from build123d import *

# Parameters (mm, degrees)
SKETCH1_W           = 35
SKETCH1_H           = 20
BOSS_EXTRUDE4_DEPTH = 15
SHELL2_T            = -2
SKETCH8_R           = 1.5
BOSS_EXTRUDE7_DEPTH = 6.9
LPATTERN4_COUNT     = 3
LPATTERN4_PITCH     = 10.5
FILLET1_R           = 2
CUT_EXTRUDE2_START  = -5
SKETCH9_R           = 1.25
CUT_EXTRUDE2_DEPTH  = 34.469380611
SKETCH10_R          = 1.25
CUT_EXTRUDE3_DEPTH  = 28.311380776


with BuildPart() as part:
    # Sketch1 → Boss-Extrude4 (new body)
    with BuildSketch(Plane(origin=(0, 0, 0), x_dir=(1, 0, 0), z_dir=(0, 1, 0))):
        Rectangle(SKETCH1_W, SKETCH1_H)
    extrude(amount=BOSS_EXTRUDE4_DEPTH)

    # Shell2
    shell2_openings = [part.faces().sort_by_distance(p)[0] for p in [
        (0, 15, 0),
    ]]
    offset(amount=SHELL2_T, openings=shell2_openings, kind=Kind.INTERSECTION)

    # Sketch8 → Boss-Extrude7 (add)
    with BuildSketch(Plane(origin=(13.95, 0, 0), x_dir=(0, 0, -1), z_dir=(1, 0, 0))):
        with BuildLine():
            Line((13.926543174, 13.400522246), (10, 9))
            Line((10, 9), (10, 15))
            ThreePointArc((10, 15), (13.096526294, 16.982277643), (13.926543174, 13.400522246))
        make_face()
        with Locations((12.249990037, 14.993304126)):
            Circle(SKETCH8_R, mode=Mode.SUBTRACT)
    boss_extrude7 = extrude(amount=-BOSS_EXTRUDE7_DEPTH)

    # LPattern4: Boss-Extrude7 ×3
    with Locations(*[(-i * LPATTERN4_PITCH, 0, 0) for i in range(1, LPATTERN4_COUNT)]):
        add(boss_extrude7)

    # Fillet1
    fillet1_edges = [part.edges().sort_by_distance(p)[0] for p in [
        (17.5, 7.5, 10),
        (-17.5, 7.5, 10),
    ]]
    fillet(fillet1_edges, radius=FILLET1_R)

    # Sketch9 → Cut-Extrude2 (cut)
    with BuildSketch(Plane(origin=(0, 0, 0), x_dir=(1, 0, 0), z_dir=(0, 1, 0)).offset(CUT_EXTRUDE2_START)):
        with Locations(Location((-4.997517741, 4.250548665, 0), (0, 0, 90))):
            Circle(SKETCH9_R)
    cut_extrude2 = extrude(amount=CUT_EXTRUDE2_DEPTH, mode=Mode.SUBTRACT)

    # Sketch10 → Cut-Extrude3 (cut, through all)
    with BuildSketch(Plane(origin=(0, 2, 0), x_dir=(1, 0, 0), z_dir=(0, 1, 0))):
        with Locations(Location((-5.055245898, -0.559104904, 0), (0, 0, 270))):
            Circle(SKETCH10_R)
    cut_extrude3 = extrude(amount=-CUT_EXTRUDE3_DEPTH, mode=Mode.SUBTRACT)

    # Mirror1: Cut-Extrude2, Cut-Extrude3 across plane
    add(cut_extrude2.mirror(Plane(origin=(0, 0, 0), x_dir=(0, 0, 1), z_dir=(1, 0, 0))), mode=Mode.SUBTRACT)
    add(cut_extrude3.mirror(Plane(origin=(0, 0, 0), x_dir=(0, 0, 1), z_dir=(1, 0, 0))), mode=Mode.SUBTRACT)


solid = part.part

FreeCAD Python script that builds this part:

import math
import FreeCAD as App
import Part
import Sketcher

V = App.Vector


def edges_at(feature, points):
    """Names of the edges that pass closest to the given points."""
    edges = feature.Shape.Edges
    near = lambda p: min(range(len(edges)), key=lambda i: edges[i].distToShape(Part.Vertex(*p))[0])
    return sorted({f"Edge{near(p) + 1}" for p in points})


def faces_at(feature, points):
    """Names of the faces that lie closest to the given points."""
    faces = feature.Shape.Faces
    near = lambda p: min(range(len(faces)), key=lambda i: faces[i].distToShape(Part.Vertex(*p))[0])
    return sorted({f"Face{near(p) + 1}" for p in points})


def add_polygon(sketch, points):
    """Adds a closed chain of lines whose ends are joined by coincident constraints."""
    first, n = sketch.GeometryCount, len(points)
    for a, b in zip(points, points[1:] + points[:1]):
        sketch.addGeometry(Part.LineSegment(App.Vector(*a, 0), App.Vector(*b, 0)), False)
    for i in range(n):
        sketch.addConstraint(Sketcher.Constraint("Coincident", first + i, 2, first + (i + 1) % n, 1))

doc = App.newDocument("Part")
body = doc.addObject("PartDesign::Body", "Body")

# Sketch on XZ plane
sketch1 = body.newObject("Sketcher::SketchObject", "Sketch")
sketch1.AttachmentSupport = (doc.getObject("XZ_Plane"), [""])
sketch1.MapMode = "FlatFace"
add_polygon(sketch1, [(-18, -10), (-18, 10), (18, 10), (18, -10)])  # lines 0-3
sketch1.addConstraint([
    Sketcher.Constraint("Vertical", 0),
    Sketcher.Constraint("Horizontal", 1),
    Sketcher.Constraint("Vertical", 2),
    Sketcher.Constraint("Horizontal", 3),
    Sketcher.Constraint("Symmetric", 0, 2, 2, 2, -1, 1),
    Sketcher.Constraint("DistanceX", 1, 1, 1, 2, 35.0),
    Sketcher.Constraint("DistanceY", 0, 1, 0, 2, 20.0),
])
pad1 = body.newObject("PartDesign::Pad", "Pad")
pad1.Profile = sketch1
pad1.Length = 15
pad1.Reversed = True
doc.recompute()

thickness = body.newObject("PartDesign::Thickness", "Thickness")
thickness.Base = (pad1, faces_at(pad1, [(0, 15, 0)]))
thickness.Value = 2
thickness.Reversed = True
thickness.Join = "Intersection"

# Sketch on YZ plane
sketch2 = body.newObject("Sketcher::SketchObject", "Sketch001")
sketch2.AttachmentSupport = (doc.getObject("YZ_Plane"), [""])
sketch2.MapMode = "FlatFace"
sketch2.AttachmentOffset = App.Placement(V(0, 0, 13.95), App.Rotation())
sketch2.addGeometry([
    Part.LineSegment(V(9, -10, 0), V(13.4, -13.9, 0)),
    Part.ArcOfCircle(Part.Circle(V(14.9, -12.2, 0), V(0, 0, 1), 2.2), math.radians(-132), math.radians(87)),
    Part.LineSegment(V(15, -10, 0), V(9, -10, 0)),
    Part.Circle(V(15, -12.2, 0), V(0, 0, 1), 1.5),
], False)
sketch2.addConstraint([
    Sketcher.Constraint("Tangent", 0, 2, 1, 1),
    Sketcher.Constraint("Coincident", 1, 2, 2, 1),
    Sketcher.Constraint("Coincident", 2, 2, 0, 1),
    Sketcher.Constraint("Horizontal", 2),
    Sketcher.Constraint("Diameter", 3, 3.0),
    Sketcher.Constraint("DistanceX", 2, 2, 2, 1, 6.0),
    Sketcher.Constraint("Radius", 1, 2.25),
    Sketcher.Constraint("DistanceX", -1, 1, 1, 2, 15.0),
    Sketcher.Constraint("DistanceY", 1, 2, -1, 1, 10.0),
    Sketcher.Constraint("DistanceX", -1, 1, 1, 3, 14.898528),
    Sketcher.Constraint("DistanceY", 3, 3, -1, 1, 12.24999),
    Sketcher.Constraint("DistanceX", 0, 2, 3, 3, 1.592782),
])
pad2 = body.newObject("PartDesign::Pad", "Pad001")
pad2.Profile = sketch2
pad2.Length = 6.9
pad2.Reversed = True
doc.recompute()

linearpattern = body.newObject("PartDesign::LinearPattern", "LinearPattern")
linearpattern.Originals = [pad2]
linearpattern.Direction = (doc.getObject("X_Axis"), [""])
linearpattern.Mode = "offset"
linearpattern.Offset = 10.5
linearpattern.Occurrences = 3
linearpattern.Reversed = True
body.Tip = linearpattern
doc.recompute()

fillet = body.newObject("PartDesign::Fillet", "Fillet")
fillet.Base = (linearpattern, edges_at(linearpattern, [(17.5, 7.5, 10), (-17.5, 7.5, 10)]))
fillet.Radius = 2

# Sketch on XZ plane
sketch3 = body.newObject("Sketcher::SketchObject", "Sketch002")
sketch3.AttachmentSupport = (doc.getObject("XZ_Plane"), [""])
sketch3.MapMode = "FlatFace"
sketch3.AttachmentOffset = App.Placement(V(0, 0, 5), App.Rotation())
sketch3.addGeometry(Part.Circle(V(-5, -4.3, 0), V(0, 0, 1), 1.2), False)
sketch3.addConstraint([
    Sketcher.Constraint("Diameter", 0, 2.5),
    Sketcher.Constraint("DistanceY", 0, 3, -1, 1, 4.250549),
    Sketcher.Constraint("DistanceX", 0, 3, -1, 1, 4.997518),
])
pocket1 = body.newObject("PartDesign::Pocket", "Pocket")
pocket1.Profile = sketch3
pocket1.Length = 34.469381

# Sketch on XZ plane
sketch4 = body.newObject("Sketcher::SketchObject", "Sketch003")
sketch4.AttachmentSupport = (doc.getObject("XZ_Plane"), [""])
sketch4.MapMode = "FlatFace"
sketch4.AttachmentOffset = App.Placement(V(0, 0, -2), App.Rotation())
sketch4.addGeometry(Part.Circle(V(-5.1, 0.6, 0), V(0, 0, 1), 1.2), False)
sketch4.addConstraint([
    Sketcher.Constraint("Diameter", 0, 2.5),
    Sketcher.Constraint("DistanceX", 0, 3, -1, 1, 5.055246),
    Sketcher.Constraint("DistanceY", -1, 1, 0, 3, 0.559105),
])
pocket2 = body.newObject("PartDesign::Pocket", "Pocket001")
pocket2.Profile = sketch4
pocket2.Type = "ThroughAll"
pocket2.Reversed = True
doc.recompute()

mirrored = body.newObject("PartDesign::Mirrored", "Mirrored")
mirrored.Originals = [pocket1, pocket2]
mirrored.MirrorPlane = (doc.getObject("YZ_Plane"), [""])
body.Tip = mirrored

doc.recompute()
